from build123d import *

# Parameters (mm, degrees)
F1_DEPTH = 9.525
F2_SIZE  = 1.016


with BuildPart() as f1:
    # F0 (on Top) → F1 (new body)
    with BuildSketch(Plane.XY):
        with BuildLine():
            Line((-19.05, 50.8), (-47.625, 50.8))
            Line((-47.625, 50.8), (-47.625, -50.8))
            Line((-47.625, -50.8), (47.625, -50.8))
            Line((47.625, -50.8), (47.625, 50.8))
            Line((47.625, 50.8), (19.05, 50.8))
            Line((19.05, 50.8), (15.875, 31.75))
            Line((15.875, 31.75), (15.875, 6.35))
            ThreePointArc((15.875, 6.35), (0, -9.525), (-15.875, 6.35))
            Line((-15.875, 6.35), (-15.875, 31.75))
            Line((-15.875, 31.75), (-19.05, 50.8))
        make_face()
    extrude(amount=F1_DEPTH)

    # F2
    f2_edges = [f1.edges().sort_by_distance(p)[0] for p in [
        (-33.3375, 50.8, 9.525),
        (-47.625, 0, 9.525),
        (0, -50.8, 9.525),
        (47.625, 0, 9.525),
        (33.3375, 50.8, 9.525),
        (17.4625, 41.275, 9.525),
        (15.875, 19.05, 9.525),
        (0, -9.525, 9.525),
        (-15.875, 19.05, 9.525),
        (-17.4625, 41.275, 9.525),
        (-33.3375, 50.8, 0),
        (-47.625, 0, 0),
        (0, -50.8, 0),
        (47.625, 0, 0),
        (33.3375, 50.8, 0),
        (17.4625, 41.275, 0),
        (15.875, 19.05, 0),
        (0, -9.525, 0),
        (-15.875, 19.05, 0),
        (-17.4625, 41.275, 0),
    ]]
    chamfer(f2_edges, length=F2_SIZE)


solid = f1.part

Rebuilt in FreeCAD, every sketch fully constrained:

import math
import FreeCAD as App
import Part
import Sketcher

V = App.Vector
Q = App.Units.Quantity


def edges_at(feature, points):
    """Names of the edges that pass closest to the given points."""
    edges = feature.Shape.Edges
    near = lambda p: min(range(len(edges)), key=lambda i: edges[i].distToShape(Part.Vertex(*p))[0])
    return sorted({f"Edge{near(p) + 1}" for p in points})

doc = App.newDocument("Part")
params = doc.addObject("Spreadsheet::Sheet", "Params")
for row, (alias, value) in enumerate([
    ("sketch1_height", "4 in"),
    ("sketch1_height2", "1 in"),
    ("sketch1_radius", "0.625 in"),
    ("sketch1_width", "3.75 in"),
    ("pad1_length", "0.375 in"),
    ("chamfer_size", "0.04 in"),
], start=1):
    params.set(f"A{row}", alias)
    params.set(f"B{row}", "=" + value)
    params.setAlias(f"B{row}", alias)

body = doc.addObject("PartDesign::Body", "Body")

sketch1 = doc.addObject("Sketcher::SketchObject", "Sketch")
body.addObject(sketch1)
sketch1.AttachmentSupport = (doc.XY_Plane, [""])
sketch1.MapMode = "FlatFace"
sketch1.addGeometry([
    Part.LineSegment(V(-19.05, 50.8, 0), V(-47.625, 50.8, 0)),
    Part.LineSegment(V(-47.625, 50.8, 0), V(-47.625, -50.8, 0)),
    Part.LineSegment(V(-47.625, -50.8, 0), V(47.625, -50.8, 0)),
    Part.LineSegment(V(47.625, -50.8, 0), V(47.625, 50.8, 0)),
    Part.LineSegment(V(47.625, 50.8, 0), V(19.05, 50.8, 0)),
    Part.LineSegment(V(19.05, 50.8, 0), V(15.875, 31.75, 0)),
    Part.LineSegment(V(15.875, 31.75, 0), V(15.875, 6.35, 0)),
    Part.ArcOfCircle(Part.Circle(V(0, 6.35, 0), V(0, 0, 1), 15.875), math.radians(180), math.radians(360)),
    Part.LineSegment(V(-15.875, 6.35, 0), V(-15.875, 31.75, 0)),
    Part.LineSegment(V(-15.875, 31.75, 0), V(-19.05, 50.8, 0)),
], False)
sketch1.addConstraint([
    Sketcher.Constraint("Coincident", 0, 2, 1, 1),
    Sketcher.Constraint("Coincident", 1, 2, 2, 1),
    Sketcher.Constraint("Coincident", 2, 2, 3, 1),
    Sketcher.Constraint("Coincident", 3, 2, 4, 1),
    Sketcher.Constraint("Coincident", 4, 2, 5, 1),
    Sketcher.Constraint("Coincident", 5, 2, 6, 1),
    Sketcher.Constraint("Tangent", 6, 2, 7, 2),
    Sketcher.Constraint("Tangent", 7, 1, 8, 1),
    Sketcher.Constraint("Coincident", 8, 2, 9, 1),
    Sketcher.Constraint("Coincident", 9, 2, 0, 1),
    Sketcher.Constraint("Horizontal", 0),
    Sketcher.Constraint("Vertical", 1),
    Sketcher.Constraint("Horizontal", 2),
    Sketcher.Constraint("Vertical", 3),
    Sketcher.Constraint("Horizontal", 4),
    Sketcher.Constraint("Vertical", 6),
    Sketcher.Constraint("Vertical", 8),
    Sketcher.Constraint("Symmetric", 0, 2, 2, 2, -1, 1),
    Sketcher.Constraint("Symmetric", 5, 2, 8, 2, -2),
    Sketcher.Constraint("Symmetric", 4, 2, 9, 2, -2),
    Sketcher.Constraint("DistanceY", 1, 2, 1, 1, Q("4 in")),
    Sketcher.Constraint("DistanceY", 6, 2, 6, 1, Q("1 in")),
    Sketcher.Constraint("Radius", 7, Q("0.625 in")),
    Sketcher.Constraint("DistanceX", 2, 1, 2, 2, Q("3.75 in")),
    Sketcher.Constraint("DistanceX", 9, 2, 4, 2, Q("1.5 in")),
    Sketcher.Constraint("DistanceY", -1, 1, 7, 3, Q("0.25 in")),
])
sketch1.setExpression("Constraints[20]", "Params.sketch1_height")
sketch1.setExpression("Constraints[21]", "Params.sketch1_height2")
sketch1.setExpression("Constraints[22]", "Params.sketch1_radius")
sketch1.setExpression("Constraints[23]", "Params.sketch1_width")
pad1 = doc.addObject("PartDesign::Pad", "Pad")
body.addObject(pad1)
pad1.Profile = sketch1
pad1.setExpression("Length", "Params.pad1_length")
doc.recompute()

chamfer = doc.addObject("PartDesign::Chamfer", "Chamfer")
body.addObject(chamfer)
chamfer.Base = (pad1, edges_at(pad1, [
    (-33.337, 50.8, 9.525),
    (-47.625, 0, 9.525),
    (0, -50.8, 9.525),
    (47.625, 0, 9.525),
    (33.337, 50.8, 9.525),
    (17.462, 41.275, 9.525),
    (15.875, 19.05, 9.525),
    (0, -9.525, 9.525),
    (-15.875, 19.05, 9.525),
    (-17.462, 41.275, 9.525),
    (-33.337, 50.8, 0),
    (-47.625, 0, 0),
    (0, -50.8, 0),
    (47.625, 0, 0),
    (33.337, 50.8, 0),
    (17.462, 41.275, 0),
    (15.875, 19.05, 0),
    (0, -9.525, 0),
    (-15.875, 19.05, 0),
    (-17.462, 41.275, 0),
]))
chamfer.setExpression("Size", "Params.chamfer_size")

doc.recompute()
